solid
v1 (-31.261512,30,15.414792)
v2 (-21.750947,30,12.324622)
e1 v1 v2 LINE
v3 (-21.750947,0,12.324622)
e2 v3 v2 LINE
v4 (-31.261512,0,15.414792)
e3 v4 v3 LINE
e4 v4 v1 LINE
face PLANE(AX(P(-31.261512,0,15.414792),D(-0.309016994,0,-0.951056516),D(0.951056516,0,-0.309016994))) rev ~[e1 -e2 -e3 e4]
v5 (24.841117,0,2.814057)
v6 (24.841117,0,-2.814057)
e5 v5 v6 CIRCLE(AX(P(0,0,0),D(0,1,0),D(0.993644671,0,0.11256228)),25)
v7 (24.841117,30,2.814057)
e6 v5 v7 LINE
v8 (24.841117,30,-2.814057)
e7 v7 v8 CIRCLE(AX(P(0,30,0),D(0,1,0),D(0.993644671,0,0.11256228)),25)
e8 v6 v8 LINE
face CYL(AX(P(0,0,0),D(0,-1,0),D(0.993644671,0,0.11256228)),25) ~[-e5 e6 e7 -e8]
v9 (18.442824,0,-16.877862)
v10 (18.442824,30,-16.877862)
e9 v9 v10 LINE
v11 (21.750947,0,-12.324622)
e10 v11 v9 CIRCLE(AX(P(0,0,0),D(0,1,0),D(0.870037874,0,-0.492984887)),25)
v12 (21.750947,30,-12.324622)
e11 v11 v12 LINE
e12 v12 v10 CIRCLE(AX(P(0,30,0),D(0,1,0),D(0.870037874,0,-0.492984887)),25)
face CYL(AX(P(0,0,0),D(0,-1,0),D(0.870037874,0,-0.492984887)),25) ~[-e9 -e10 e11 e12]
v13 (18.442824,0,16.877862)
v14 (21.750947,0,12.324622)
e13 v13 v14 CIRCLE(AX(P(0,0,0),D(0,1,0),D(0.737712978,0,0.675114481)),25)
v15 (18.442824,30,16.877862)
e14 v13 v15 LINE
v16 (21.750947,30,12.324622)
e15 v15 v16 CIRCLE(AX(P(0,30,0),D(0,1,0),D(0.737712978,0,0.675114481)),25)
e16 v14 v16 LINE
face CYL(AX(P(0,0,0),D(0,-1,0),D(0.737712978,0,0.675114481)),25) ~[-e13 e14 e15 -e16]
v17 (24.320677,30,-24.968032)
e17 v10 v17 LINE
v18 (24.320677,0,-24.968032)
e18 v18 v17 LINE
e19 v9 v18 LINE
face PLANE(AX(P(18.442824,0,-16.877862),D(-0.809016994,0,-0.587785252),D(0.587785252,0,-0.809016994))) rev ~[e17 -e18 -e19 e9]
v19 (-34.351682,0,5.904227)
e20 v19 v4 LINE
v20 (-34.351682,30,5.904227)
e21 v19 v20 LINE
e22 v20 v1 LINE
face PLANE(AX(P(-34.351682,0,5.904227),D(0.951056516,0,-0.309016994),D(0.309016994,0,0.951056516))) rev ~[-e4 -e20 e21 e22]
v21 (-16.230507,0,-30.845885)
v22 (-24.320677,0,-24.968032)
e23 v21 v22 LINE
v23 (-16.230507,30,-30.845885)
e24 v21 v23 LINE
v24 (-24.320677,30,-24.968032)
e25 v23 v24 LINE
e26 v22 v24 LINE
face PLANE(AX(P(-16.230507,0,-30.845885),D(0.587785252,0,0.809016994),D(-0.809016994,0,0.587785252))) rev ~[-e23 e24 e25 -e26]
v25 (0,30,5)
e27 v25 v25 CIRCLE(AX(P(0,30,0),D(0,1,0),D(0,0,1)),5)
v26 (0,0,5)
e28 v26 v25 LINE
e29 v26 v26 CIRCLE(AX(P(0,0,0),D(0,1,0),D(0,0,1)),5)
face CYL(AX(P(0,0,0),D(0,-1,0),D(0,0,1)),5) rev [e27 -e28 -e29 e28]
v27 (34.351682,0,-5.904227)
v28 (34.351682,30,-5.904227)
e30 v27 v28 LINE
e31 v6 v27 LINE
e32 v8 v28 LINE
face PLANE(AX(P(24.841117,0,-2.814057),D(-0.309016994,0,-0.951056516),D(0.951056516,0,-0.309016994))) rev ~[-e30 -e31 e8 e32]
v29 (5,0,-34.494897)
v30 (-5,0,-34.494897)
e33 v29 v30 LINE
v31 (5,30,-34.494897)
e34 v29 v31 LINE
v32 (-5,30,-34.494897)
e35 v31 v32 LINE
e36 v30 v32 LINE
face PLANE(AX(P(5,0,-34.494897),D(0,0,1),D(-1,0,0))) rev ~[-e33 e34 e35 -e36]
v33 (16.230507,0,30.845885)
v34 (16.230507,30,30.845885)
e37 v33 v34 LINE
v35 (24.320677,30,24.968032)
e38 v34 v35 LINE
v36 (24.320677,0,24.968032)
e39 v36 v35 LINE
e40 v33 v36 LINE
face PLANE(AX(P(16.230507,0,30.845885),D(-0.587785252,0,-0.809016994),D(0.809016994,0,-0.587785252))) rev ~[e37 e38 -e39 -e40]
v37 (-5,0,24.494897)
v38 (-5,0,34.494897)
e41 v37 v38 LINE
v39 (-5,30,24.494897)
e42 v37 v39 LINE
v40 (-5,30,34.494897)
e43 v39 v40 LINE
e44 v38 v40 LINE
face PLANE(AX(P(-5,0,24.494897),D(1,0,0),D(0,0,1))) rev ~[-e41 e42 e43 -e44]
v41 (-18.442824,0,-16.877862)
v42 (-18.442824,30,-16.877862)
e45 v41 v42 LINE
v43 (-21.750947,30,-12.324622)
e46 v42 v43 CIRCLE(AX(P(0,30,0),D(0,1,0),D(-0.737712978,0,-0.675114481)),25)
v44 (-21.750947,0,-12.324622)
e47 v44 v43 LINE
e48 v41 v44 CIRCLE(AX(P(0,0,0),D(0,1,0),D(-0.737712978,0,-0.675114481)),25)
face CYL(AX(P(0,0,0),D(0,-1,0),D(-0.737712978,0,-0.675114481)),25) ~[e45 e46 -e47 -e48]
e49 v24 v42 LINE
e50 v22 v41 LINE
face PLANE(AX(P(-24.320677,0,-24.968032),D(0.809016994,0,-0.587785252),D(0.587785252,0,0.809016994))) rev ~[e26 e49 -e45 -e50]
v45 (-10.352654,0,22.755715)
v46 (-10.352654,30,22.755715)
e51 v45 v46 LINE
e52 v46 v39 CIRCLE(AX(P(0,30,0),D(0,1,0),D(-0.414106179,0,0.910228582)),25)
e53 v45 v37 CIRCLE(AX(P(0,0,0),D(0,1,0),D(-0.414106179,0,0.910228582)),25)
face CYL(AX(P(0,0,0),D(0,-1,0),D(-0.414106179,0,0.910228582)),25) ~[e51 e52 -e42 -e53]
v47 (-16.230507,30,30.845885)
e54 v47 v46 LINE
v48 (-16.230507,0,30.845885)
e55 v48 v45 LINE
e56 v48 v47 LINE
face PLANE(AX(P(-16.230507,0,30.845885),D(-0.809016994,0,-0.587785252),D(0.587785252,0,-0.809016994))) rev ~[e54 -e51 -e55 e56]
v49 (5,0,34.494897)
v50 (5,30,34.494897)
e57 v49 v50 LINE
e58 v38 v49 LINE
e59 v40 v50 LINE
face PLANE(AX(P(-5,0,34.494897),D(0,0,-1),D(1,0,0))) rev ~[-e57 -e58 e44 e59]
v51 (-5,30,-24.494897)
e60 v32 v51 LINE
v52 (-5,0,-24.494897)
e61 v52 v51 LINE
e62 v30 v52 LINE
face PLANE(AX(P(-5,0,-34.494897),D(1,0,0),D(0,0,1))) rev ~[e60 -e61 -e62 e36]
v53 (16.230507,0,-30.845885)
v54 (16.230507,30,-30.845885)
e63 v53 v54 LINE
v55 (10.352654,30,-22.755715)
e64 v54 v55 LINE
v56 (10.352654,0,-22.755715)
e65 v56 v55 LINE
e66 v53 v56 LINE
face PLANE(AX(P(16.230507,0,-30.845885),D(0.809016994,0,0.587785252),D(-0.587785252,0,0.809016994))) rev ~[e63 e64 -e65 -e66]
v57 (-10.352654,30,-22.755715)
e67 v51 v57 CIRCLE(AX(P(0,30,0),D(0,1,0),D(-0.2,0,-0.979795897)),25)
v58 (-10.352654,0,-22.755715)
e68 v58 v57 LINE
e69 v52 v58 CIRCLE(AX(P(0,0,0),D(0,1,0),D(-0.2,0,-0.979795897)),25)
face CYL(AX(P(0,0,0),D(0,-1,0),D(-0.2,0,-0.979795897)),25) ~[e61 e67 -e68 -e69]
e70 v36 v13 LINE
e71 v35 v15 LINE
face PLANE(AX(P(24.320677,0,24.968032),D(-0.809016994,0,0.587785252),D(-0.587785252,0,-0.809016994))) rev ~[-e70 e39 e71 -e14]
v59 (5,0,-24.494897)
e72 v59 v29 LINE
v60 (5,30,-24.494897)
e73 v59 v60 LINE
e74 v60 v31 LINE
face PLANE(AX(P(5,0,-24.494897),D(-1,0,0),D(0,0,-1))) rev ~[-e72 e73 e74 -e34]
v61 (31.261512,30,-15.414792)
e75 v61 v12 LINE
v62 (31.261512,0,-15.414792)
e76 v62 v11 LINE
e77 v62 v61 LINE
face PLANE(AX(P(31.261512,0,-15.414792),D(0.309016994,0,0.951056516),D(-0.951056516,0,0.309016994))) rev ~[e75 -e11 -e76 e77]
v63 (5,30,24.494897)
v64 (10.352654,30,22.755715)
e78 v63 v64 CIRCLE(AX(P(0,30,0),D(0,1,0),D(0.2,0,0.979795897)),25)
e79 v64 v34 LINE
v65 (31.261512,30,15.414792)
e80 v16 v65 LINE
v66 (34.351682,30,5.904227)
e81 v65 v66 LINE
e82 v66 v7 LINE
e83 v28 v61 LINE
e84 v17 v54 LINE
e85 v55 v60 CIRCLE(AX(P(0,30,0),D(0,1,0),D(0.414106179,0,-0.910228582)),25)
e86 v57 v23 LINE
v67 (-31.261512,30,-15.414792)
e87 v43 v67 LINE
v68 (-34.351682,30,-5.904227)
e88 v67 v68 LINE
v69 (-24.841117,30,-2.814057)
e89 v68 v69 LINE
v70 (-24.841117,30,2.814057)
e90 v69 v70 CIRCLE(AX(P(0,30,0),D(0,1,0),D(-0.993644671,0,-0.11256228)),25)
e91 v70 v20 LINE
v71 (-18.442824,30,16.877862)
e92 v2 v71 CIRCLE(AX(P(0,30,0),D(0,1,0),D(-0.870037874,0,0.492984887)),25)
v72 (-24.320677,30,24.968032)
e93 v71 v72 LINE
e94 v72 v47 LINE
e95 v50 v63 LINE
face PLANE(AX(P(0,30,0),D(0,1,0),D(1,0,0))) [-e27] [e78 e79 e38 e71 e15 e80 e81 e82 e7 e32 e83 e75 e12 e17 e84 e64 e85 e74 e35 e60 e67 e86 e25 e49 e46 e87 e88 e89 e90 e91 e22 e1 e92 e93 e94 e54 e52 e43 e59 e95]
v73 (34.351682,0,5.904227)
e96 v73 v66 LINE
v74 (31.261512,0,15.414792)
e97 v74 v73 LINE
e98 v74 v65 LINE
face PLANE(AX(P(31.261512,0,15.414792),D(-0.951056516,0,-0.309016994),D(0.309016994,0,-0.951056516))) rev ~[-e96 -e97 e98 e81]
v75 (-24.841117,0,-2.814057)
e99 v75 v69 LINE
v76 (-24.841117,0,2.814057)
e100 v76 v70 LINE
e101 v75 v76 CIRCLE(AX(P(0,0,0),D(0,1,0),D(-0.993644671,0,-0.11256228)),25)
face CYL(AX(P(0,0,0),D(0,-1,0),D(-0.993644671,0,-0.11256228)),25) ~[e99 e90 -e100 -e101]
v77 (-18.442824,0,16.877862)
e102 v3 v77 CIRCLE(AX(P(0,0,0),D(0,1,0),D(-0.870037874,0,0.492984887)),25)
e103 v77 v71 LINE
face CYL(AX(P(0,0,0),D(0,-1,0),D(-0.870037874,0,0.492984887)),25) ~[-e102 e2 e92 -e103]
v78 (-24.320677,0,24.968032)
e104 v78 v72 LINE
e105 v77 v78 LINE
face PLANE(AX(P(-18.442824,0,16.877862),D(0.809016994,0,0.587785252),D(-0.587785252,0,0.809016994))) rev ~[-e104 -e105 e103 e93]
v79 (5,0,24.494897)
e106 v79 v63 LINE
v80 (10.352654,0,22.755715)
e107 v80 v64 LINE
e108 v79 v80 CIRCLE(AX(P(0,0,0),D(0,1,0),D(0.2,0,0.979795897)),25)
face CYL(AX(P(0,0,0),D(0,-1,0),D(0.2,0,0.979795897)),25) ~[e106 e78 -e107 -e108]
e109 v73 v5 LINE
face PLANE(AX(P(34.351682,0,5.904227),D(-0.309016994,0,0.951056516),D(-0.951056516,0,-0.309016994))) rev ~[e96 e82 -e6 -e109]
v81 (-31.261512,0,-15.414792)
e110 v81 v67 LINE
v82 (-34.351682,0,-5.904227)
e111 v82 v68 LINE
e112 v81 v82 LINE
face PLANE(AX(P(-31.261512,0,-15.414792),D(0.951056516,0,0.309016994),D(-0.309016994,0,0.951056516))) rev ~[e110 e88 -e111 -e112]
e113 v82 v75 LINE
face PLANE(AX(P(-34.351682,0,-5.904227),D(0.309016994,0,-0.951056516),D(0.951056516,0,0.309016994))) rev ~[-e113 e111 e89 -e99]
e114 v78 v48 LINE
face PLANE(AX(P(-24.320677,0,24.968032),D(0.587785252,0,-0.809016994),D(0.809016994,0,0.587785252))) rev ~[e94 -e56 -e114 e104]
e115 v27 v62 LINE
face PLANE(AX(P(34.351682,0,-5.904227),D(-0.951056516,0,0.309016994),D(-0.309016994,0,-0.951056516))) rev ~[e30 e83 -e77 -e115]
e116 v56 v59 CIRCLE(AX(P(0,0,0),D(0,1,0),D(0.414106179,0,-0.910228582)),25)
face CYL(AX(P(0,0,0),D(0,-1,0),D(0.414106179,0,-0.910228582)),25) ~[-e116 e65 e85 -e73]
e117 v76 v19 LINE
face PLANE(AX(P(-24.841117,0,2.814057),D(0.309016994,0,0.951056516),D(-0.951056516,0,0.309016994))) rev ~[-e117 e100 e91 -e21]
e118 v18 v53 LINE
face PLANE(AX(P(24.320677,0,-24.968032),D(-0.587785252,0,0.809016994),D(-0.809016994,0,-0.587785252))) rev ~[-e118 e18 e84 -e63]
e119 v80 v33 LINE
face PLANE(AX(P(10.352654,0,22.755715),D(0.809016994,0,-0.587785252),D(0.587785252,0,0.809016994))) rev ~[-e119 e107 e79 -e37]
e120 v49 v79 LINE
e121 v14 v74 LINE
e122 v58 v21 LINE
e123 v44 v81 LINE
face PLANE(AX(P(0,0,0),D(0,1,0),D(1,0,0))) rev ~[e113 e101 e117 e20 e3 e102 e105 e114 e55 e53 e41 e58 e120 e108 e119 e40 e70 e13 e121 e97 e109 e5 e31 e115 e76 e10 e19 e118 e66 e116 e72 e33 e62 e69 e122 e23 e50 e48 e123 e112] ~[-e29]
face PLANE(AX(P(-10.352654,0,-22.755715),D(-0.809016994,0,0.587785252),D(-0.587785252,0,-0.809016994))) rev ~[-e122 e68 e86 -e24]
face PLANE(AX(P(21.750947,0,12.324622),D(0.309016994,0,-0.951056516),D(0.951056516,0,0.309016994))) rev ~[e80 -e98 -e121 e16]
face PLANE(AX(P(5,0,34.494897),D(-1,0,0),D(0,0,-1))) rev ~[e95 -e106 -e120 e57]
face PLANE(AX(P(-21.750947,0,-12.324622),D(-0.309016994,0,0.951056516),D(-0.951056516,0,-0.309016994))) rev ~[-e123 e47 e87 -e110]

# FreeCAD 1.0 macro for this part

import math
import FreeCAD as App
import Part
import Sketcher
from FreeCAD import Vector
Q = App.Units.Quantity

doc = App.newDocument("Part")
body = doc.addObject("PartDesign::Body", "Body")

# Sketch on XZ plane
sketch1 = body.newObject("Sketcher::SketchObject", "Sketch")
sketch1.AttachmentSupport = (doc.getObject("XZ_Plane"), [""])
sketch1.MapMode = "FlatFace"
sketch1.addGeometry([
    Part.LineSegment(Vector(24, -25, 0), Vector(16, -31, 0)),  # 0
    Part.LineSegment(Vector(16, -31, 0), Vector(10, -23, 0)),  # 1
    Part.ArcOfCircle(Part.Circle(Vector(0, 0, 0), Vector(0, 0, 1), 25), math.radians(-78.46), math.radians(-65.54)),  # 2
    Part.LineSegment(Vector(5, -24, 0), Vector(5, -34, 0)),  # 3
    Part.LineSegment(Vector(5, -34, 0), Vector(-5, -34, 0)),  # 4
    Part.LineSegment(Vector(-5, -34, 0), Vector(-5, -24, 0)),  # 5
    Part.ArcOfCircle(Part.Circle(Vector(0, 0, 0), Vector(0, 0, 1), 25), math.radians(-114.46), math.radians(-101.54)),  # 6
    Part.LineSegment(Vector(-10, -23, 0), Vector(-16, -31, 0)),  # 7
    Part.LineSegment(Vector(-16, -31, 0), Vector(-24, -25, 0)),  # 8
    Part.LineSegment(Vector(-24, -25, 0), Vector(-18, -17, 0)),  # 9
    Part.ArcOfCircle(Part.Circle(Vector(0, 0, 0), Vector(0, 0, 1), 25), math.radians(-150.46), math.radians(-137.54)),  # 10
    Part.LineSegment(Vector(-22, -12, 0), Vector(-31, -15, 0)),  # 11
    Part.LineSegment(Vector(-31, -15, 0), Vector(-34, -6, 0)),  # 12
    Part.LineSegment(Vector(-34, -6, 0), Vector(-25, -3, 0)),  # 13
    Part.ArcOfCircle(Part.Circle(Vector(0, 0, 0), Vector(0, 0, 1), 25), math.radians(173.54), math.radians(186.46)),  # 14
    Part.LineSegment(Vector(-25, 3, 0), Vector(-34, 6, 0)),  # 15
    Part.LineSegment(Vector(-34, 6, 0), Vector(-31, 15, 0)),  # 16
    Part.LineSegment(Vector(-31, 15, 0), Vector(-22, 12, 0)),  # 17
    Part.ArcOfCircle(Part.Circle(Vector(0, 0, 0), Vector(0, 0, 1), 25), math.radians(137.54), math.radians(150.46)),  # 18
    Part.LineSegment(Vector(-18, 17, 0), Vector(-24, 25, 0)),  # 19
    Part.LineSegment(Vector(-24, 25, 0), Vector(-16, 31, 0)),  # 20
    Part.LineSegment(Vector(-16, 31, 0), Vector(-10, 23, 0)),  # 21
    Part.ArcOfCircle(Part.Circle(Vector(0, 0, 0), Vector(0, 0, 1), 25), math.radians(101.54), math.radians(114.46)),  # 22
    Part.LineSegment(Vector(-5, 24, 0), Vector(-5, 34, 0)),  # 23
    Part.LineSegment(Vector(-5, 34, 0), Vector(5, 34, 0)),  # 24
    Part.LineSegment(Vector(5, 34, 0), Vector(5, 24, 0)),  # 25
    Part.ArcOfCircle(Part.Circle(Vector(0, 0, 0), Vector(0, 0, 1), 25), math.radians(65.54), math.radians(78.46)),  # 26
    Part.LineSegment(Vector(10, 23, 0), Vector(16, 31, 0)),  # 27
    Part.LineSegment(Vector(16, 31, 0), Vector(24, 25, 0)),  # 28
    Part.LineSegment(Vector(24, 25, 0), Vector(18, 17, 0)),  # 29
    Part.ArcOfCircle(Part.Circle(Vector(0, 0, 0), Vector(0, 0, 1), 25), math.radians(29.54), math.radians(42.46)),  # 30
    Part.LineSegment(Vector(22, 12, 0), Vector(31, 15, 0)),  # 31
    Part.LineSegment(Vector(31, 15, 0), Vector(34, 6, 0)),  # 32
    Part.LineSegment(Vector(34, 6, 0), Vector(25, 3, 0)),  # 33
    Part.ArcOfCircle(Part.Circle(Vector(0, 0, 0), Vector(0, 0, 1), 25), math.radians(-6.46), math.radians(6.46)),  # 34
    Part.LineSegment(Vector(25, -3, 0), Vector(34, -6, 0)),  # 35
    Part.LineSegment(Vector(34, -6, 0), Vector(31, -15, 0)),  # 36
    Part.LineSegment(Vector(31, -15, 0), Vector(22, -12, 0)),  # 37
    Part.ArcOfCircle(Part.Circle(Vector(0, 0, 0), Vector(0, 0, 1), 25), math.radians(-42.46), math.radians(-29.54)),  # 38
    Part.LineSegment(Vector(18, -17, 0), Vector(24, -25, 0)),  # 39
    Part.Circle(Vector(0, 0, 0), Vector(0, 0, 1), 5),  # 40
], False)
sketch1.addConstraint([
    Sketcher.Constraint("Coincident", 0, 2, 1, 1),
    Sketcher.Constraint("Coincident", 1, 2, 2, 2),
    Sketcher.Constraint("Coincident", 2, 1, 3, 1),
    Sketcher.Constraint("Coincident", 3, 2, 4, 1),
    Sketcher.Constraint("Coincident", 4, 2, 5, 1),
    Sketcher.Constraint("Coincident", 5, 2, 6, 2),
    Sketcher.Constraint("Coincident", 6, 1, 7, 1),
    Sketcher.Constraint("Coincident", 7, 2, 8, 1),
    Sketcher.Constraint("Coincident", 8, 2, 9, 1),
    Sketcher.Constraint("Coincident", 9, 2, 10, 2),
    Sketcher.Constraint("Coincident", 10, 1, 11, 1),
    Sketcher.Constraint("Coincident", 11, 2, 12, 1),
    Sketcher.Constraint("Coincident", 12, 2, 13, 1),
    Sketcher.Constraint("Coincident", 13, 2, 14, 2),
    Sketcher.Constraint("Coincident", 14, 1, 15, 1),
    Sketcher.Constraint("Coincident", 15, 2, 16, 1),
    Sketcher.Constraint("Coincident", 16, 2, 17, 1),
    Sketcher.Constraint("Coincident", 17, 2, 18, 2),
    Sketcher.Constraint("Coincident", 18, 1, 19, 1),
    Sketcher.Constraint("Coincident", 19, 2, 20, 1),
    Sketcher.Constraint("Coincident", 20, 2, 21, 1),
    Sketcher.Constraint("Coincident", 21, 2, 22, 2),
    Sketcher.Constraint("Coincident", 22, 1, 23, 1),
    Sketcher.Constraint("Coincident", 23, 2, 24, 1),
    Sketcher.Constraint("Coincident", 24, 2, 25, 1),
    Sketcher.Constraint("Coincident", 25, 2, 26, 2),
    Sketcher.Constraint("Coincident", 26, 1, 27, 1),
    Sketcher.Constraint("Coincident", 27, 2, 28, 1),
    Sketcher.Constraint("Coincident", 28, 2, 29, 1),
    Sketcher.Constraint("Coincident", 29, 2, 30, 2),
    Sketcher.Constraint("Coincident", 30, 1, 31, 1),
    Sketcher.Constraint("Coincident", 31, 2, 32, 1),
    Sketcher.Constraint("Coincident", 32, 2, 33, 1),
    Sketcher.Constraint("Coincident", 33, 2, 34, 2),
    Sketcher.Constraint("Coincident", 34, 1, 35, 1),
    Sketcher.Constraint("Coincident", 35, 2, 36, 1),
    Sketcher.Constraint("Coincident", 36, 2, 37, 1),
    Sketcher.Constraint("Coincident", 37, 2, 38, 2),
    Sketcher.Constraint("Coincident", 38, 1, 39, 1),
    Sketcher.Constraint("Coincident", 39, 2, 0, 1),
    Sketcher.Constraint("Vertical", 3),
    Sketcher.Constraint("Horizontal", 4),
    Sketcher.Constraint("Vertical", 5),
    Sketcher.Constraint("Vertical", 23),
    Sketcher.Constraint("Horizontal", 24),
    Sketcher.Constraint("Vertical", 25),
    Sketcher.Constraint("Coincident", 2, 3, -1, 1),
    Sketcher.Constraint("Coincident", 6, 3, -1, 1),
    Sketcher.Constraint("Coincident", 10, 3, -1, 1),
    Sketcher.Constraint("Coincident", 14, 3, -1, 1),
    Sketcher.Constraint("Coincident", 18, 3, -1, 1),
    Sketcher.Constraint("Coincident", 22, 3, -1, 1),
    Sketcher.Constraint("Coincident", 26, 3, -1, 1),
    Sketcher.Constraint("Coincident", 30, 3, -1, 1),
    Sketcher.Constraint("Coincident", 34, 3, -1, 1),
    Sketcher.Constraint("Coincident", 38, 3, -1, 1),
    Sketcher.Constraint("Coincident", 40, 3, -1, 1),
    Sketcher.Constraint("Equal", 2, 6),
    Sketcher.Constraint("Equal", 6, 10),
    Sketcher.Constraint("Equal", 10, 14),
    Sketcher.Constraint("Equal", 14, 18),
    Sketcher.Constraint("Equal", 18, 22),
    Sketcher.Constraint("Equal", 22, 26),
    Sketcher.Constraint("Equal", 26, 30),
    Sketcher.Constraint("Equal", 30, 34),
    Sketcher.Constraint("Equal", 34, 38),
    Sketcher.Constraint("Symmetric", 0, 2, 20, 2, -1, 1),
    Sketcher.Constraint("Symmetric", 3, 2, 23, 2, -1, 1),
    Sketcher.Constraint("Symmetric", 7, 2, 27, 2, -1, 1),
    Sketcher.Constraint("Symmetric", 8, 2, 28, 2, -1, 1),
    Sketcher.Constraint("Symmetric", 11, 2, 31, 2, -1, 1),
    Sketcher.Constraint("Symmetric", 12, 2, 32, 2, -1, 1),
    Sketcher.Constraint("Symmetric", 15, 2, 35, 2, -1, 1),
    Sketcher.Constraint("Symmetric", 16, 2, 36, 2, -1, 1),
    Sketcher.Constraint("Symmetric", 19, 2, 39, 2, -1, 1),
    Sketcher.Constraint("Symmetric", 0, 2, 7, 2, -2),
    Sketcher.Constraint("Symmetric", 19, 2, 28, 2, -2),
    Sketcher.Constraint("Symmetric", 16, 2, 31, 2, -2),
    Sketcher.Constraint("Symmetric", 15, 2, 32, 2, -2),
    Sketcher.Constraint("Perpendicular", 0, 1),
    Sketcher.Constraint("Perpendicular", 7, 8),
    Sketcher.Constraint("Perpendicular", 8, 9),
    Sketcher.Constraint("Perpendicular", 11, 12),
    Sketcher.Constraint("Perpendicular", 12, 13),
    Sketcher.Constraint("Perpendicular", 15, 16),
    Sketcher.Constraint("Perpendicular", 16, 17),
    Sketcher.Constraint("Parallel", 1, 19),
    Sketcher.Constraint("Perpendicular", 20, 21),
    Sketcher.Constraint("Parallel", 9, 27),
    Sketcher.Constraint("Perpendicular", 28, 29),
    Sketcher.Constraint("Parallel", 13, 31),
    Sketcher.Constraint("Perpendicular", 32, 33),
    Sketcher.Constraint("Parallel", 17, 35),
    Sketcher.Constraint("Perpendicular", 36, 37),
    Sketcher.Constraint("Parallel", 21, 39),
    Sketcher.Constraint("Horizontal", 2, 1, 5, 2),
    Sketcher.Constraint("Horizontal", 22, 1, 25, 2),
    Sketcher.Constraint("Equal", 24, 3),
    Sketcher.Constraint("Equal", 0, 1),
    Sketcher.Constraint("Equal", 8, 9),
    Sketcher.Constraint("Equal", 9, 11),
    Sketcher.Constraint("Equal", 11, 12),
    Sketcher.Constraint("Equal", 12, 13),
    Sketcher.Constraint("Diameter", 40, 10.0),
    Sketcher.Constraint("Radius", 2, 25.0),
    Sketcher.Constraint("DistanceX", 4, 2, 4, 1, 10.0),
    Sketcher.Constraint("Angle", 0, Q("-144 deg")),
    Sketcher.Constraint("Angle", 11, Q("-162 deg")),
    Sketcher.Constraint("Distance", 0, 10.0),
])
pad1 = body.newObject("PartDesign::Pad", "Pad")
pad1.Profile = sketch1
pad1.Length = 30
pad1.Reversed = True

doc.recompute()
